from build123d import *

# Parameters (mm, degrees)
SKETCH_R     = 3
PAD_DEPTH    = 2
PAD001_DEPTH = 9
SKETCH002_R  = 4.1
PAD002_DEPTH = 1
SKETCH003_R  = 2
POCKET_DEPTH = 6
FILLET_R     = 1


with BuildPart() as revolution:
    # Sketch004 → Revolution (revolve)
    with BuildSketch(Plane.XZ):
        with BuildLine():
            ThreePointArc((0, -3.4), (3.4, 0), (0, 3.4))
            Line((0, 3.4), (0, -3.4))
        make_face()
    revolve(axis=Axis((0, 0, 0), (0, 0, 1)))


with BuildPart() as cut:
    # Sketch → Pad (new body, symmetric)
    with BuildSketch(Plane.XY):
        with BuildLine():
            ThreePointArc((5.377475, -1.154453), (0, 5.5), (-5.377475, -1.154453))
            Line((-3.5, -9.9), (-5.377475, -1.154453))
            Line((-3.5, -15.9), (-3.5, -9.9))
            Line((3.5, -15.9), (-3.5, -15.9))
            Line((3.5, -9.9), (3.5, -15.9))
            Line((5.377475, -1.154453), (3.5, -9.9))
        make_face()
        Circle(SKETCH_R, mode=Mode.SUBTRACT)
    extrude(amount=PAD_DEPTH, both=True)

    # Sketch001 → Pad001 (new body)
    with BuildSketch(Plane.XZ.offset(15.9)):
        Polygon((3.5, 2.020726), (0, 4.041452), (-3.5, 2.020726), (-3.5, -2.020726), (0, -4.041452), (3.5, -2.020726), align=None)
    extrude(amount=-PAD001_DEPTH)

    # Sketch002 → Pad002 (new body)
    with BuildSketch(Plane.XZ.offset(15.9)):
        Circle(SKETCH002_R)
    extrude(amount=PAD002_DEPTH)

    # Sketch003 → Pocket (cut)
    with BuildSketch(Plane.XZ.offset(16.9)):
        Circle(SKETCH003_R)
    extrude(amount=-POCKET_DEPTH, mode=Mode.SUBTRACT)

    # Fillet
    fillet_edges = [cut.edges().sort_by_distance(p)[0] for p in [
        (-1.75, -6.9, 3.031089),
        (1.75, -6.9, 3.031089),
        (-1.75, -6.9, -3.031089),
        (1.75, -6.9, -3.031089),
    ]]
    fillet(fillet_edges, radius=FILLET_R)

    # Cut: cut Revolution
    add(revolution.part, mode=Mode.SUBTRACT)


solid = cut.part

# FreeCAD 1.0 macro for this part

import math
import FreeCAD as App
import Part
import Sketcher
from FreeCAD import Vector
Q = App.Units.Quantity


def edges_at(feature, points):
    """Names of the edges that pass closest to the given points."""
    edges = feature.Shape.Edges
    near = lambda p: min(range(len(edges)), key=lambda i: edges[i].distToShape(Part.Vertex(*p))[0])
    return sorted({f"Edge{near(p) + 1}" for p in points})

doc = App.newDocument("Part")
params = doc.addObject("Spreadsheet::Sheet", "Params")
for row, (alias, value) in enumerate([
    ("sketch1_radius", "3.4 mm"),
    ("revolution_angle", "360 deg"),
    ("sketch2_diameter", "6 mm"),
    ("sketch2_radius", "5.5 mm"),
    ("sketch2_width", "7 mm"),
    ("sketch2_height", "6 mm"),
    ("pad1_length", "4 mm"),
    ("pad2_length", "9 mm"),
    ("sketch4_diameter", "8.2 mm"),
    ("pad3_length", "1 mm"),
    ("sketch5_diameter", "4 mm"),
    ("pocket1_length", "6 mm"),
    ("fillet_radius", "1 mm"),
], start=1):
    params.set(f"A{row}", alias)
    params.set(f"B{row}", "=" + value)
    params.setAlias(f"B{row}", alias)

body = doc.addObject("PartDesign::Body", "Body")

sketch1 = body.newObject("Sketcher::SketchObject", "Sketch")
sketch1.AttachmentSupport = (doc.getObject("XZ_Plane"), [""])
sketch1.MapMode = "FlatFace"
sketch1.addGeometry([
    Part.ArcOfCircle(Part.Circle(Vector(0, 0, 0), Vector(0, 0, 1), 3.4), math.radians(-90), math.radians(90)),
    Part.LineSegment(Vector(0, 3.4, 0), Vector(0, -3.4, 0)),
], False)
sketch1.addConstraint([
    Sketcher.Constraint("Coincident", 0, 1, 1, 2),
    Sketcher.Constraint("Coincident", 1, 1, 0, 2),
    Sketcher.Constraint("Vertical", 1),
    Sketcher.Constraint("Coincident", 0, 3, -1, 1),
    Sketcher.Constraint("PointOnObject", 0, 1, -2),
    Sketcher.Constraint("Radius", 0, 3.4),
])
sketch1.setExpression("Constraints[5]", "Params.sketch1_radius")
revolution = body.newObject("PartDesign::Revolution", "Revolution")
revolution.Profile = sketch1
revolution.ReferenceAxis = (sketch1, ["V_Axis"])
revolution.setExpression("Angle", "Params.revolution_angle")
body2 = doc.addObject("PartDesign::Body", "Body001")

sketch2 = body2.newObject("Sketcher::SketchObject", "Sketch001")
sketch2.AttachmentSupport = (doc.getObject("XY_Plane001"), [""])
sketch2.MapMode = "FlatFace"
sketch2.addGeometry([
    Part.ArcOfCircle(Part.Circle(Vector(0, 0, 0), Vector(0, 0, 1), 5.5), math.radians(-12.116525), math.radians(192.116525)),
    Part.LineSegment(Vector(-5.377475, -1.154453, 0), Vector(-3.5, -9.9, 0)),
    Part.LineSegment(Vector(-3.5, -9.9, 0), Vector(-3.5, -15.9, 0)),
    Part.LineSegment(Vector(-3.5, -15.9, 0), Vector(3.5, -15.9, 0)),
    Part.LineSegment(Vector(3.5, -15.9, 0), Vector(3.5, -9.9, 0)),
    Part.LineSegment(Vector(3.5, -9.9, 0), Vector(5.377475, -1.154453, 0)),
    Part.Circle(Vector(0, 0, 0), Vector(0, 0, 1), 3),
], False)
sketch2.addConstraint([
    Sketcher.Constraint("Coincident", 0, 2, 1, 1),
    Sketcher.Constraint("Coincident", 1, 2, 2, 1),
    Sketcher.Constraint("Coincident", 2, 2, 3, 1),
    Sketcher.Constraint("Coincident", 3, 2, 4, 1),
    Sketcher.Constraint("Coincident", 4, 2, 5, 1),
    Sketcher.Constraint("Coincident", 5, 2, 0, 1),
    Sketcher.Constraint("Vertical", 2),
    Sketcher.Constraint("Horizontal", 3),
    Sketcher.Constraint("Vertical", 4),
    Sketcher.Constraint("Coincident", 0, 3, -1, 1),
    Sketcher.Constraint("Coincident", 6, 3, -1, 1),
    Sketcher.Constraint("Symmetric", 1, 2, 4, 2, -2),
    Sketcher.Constraint("Horizontal", 0, 2, 5, 2),
    Sketcher.Constraint("Diameter", 6, 6.0),
    Sketcher.Constraint("Radius", 0, 5.5),
    Sketcher.Constraint("DistanceX", 3, 1, 3, 2, 7.0),
    Sketcher.Constraint("DistanceY", 2, 2, 2, 1, 6.0),
    Sketcher.Constraint("DistanceY", 1, 2, -1, 1, 9.9),
    Sketcher.Constraint("DistanceX", 0, 2, 5, 2, 10.75495),
])
sketch2.setExpression("Constraints[13]", "Params.sketch2_diameter")
sketch2.setExpression("Constraints[14]", "Params.sketch2_radius")
sketch2.setExpression("Constraints[15]", "Params.sketch2_width")
sketch2.setExpression("Constraints[16]", "Params.sketch2_height")
pad1 = body2.newObject("PartDesign::Pad", "Pad")
pad1.Profile = sketch2
pad1.setExpression("Length", "Params.pad1_length")
pad1.Midplane = True

sketch3 = body2.newObject("Sketcher::SketchObject", "Sketch002")
sketch3.AttachmentSupport = (doc.getObject("XZ_Plane001"), [""])
sketch3.MapMode = "FlatFace"
sketch3.AttachmentOffset = App.Placement(Vector(0, 0, 15.9), App.Rotation())
sketch3.addGeometry([
    Part.LineSegment(Vector(3.5, 2.020726, 0), Vector(0, 4.041452, 0)),
    Part.LineSegment(Vector(0, 4.041452, 0), Vector(-3.5, 2.020726, 0)),
    Part.LineSegment(Vector(-3.5, 2.020726, 0), Vector(-3.5, -2.020726, 0)),
    Part.LineSegment(Vector(-3.5, -2.020726, 0), Vector(0, -4.041452, 0)),
    Part.LineSegment(Vector(0, -4.041452, 0), Vector(3.5, -2.020726, 0)),
    Part.LineSegment(Vector(3.5, -2.020726, 0), Vector(3.5, 2.020726, 0)),
], False)
sketch3.addConstraint([
    Sketcher.Constraint("Coincident", 0, 2, 1, 1),
    Sketcher.Constraint("Coincident", 1, 2, 2, 1),
    Sketcher.Constraint("Coincident", 2, 2, 3, 1),
    Sketcher.Constraint("Coincident", 3, 2, 4, 1),
    Sketcher.Constraint("Coincident", 4, 2, 5, 1),
    Sketcher.Constraint("Coincident", 5, 2, 0, 1),
    Sketcher.Constraint("Vertical", 2),
    Sketcher.Constraint("Vertical", 5),
    Sketcher.Constraint("Symmetric", 0, 2, 3, 2, -1, 1),
    Sketcher.Constraint("Symmetric", 1, 2, 4, 2, -1, 1),
    Sketcher.Constraint("PointOnObject", 0, 2, -2),
    Sketcher.Constraint("Parallel", 0, 3),
    Sketcher.Constraint("Horizontal", 2, 2, 4, 2),
    Sketcher.Constraint("Angle", 0, Q("149.999999 deg")),
    Sketcher.Constraint("DistanceX", 2, 2, 4, 2, 7.0),
    Sketcher.Constraint("DistanceY", 2, 2, 2, 1, 4.041452),
])
pad2 = body2.newObject("PartDesign::Pad", "Pad001")
pad2.Profile = sketch3
pad2.setExpression("Length", "Params.pad2_length")
pad2.Reversed = True

sketch4 = body2.newObject("Sketcher::SketchObject", "Sketch003")
sketch4.AttachmentSupport = (doc.getObject("XZ_Plane001"), [""])
sketch4.MapMode = "FlatFace"
sketch4.AttachmentOffset = App.Placement(Vector(0, 0, 15.9), App.Rotation())
sketch4.addGeometry(Part.Circle(Vector(0, 0, 0), Vector(0, 0, 1), 4.1), False)
sketch4.addConstraint([
    Sketcher.Constraint("Coincident", 0, 3, -1, 1),
    Sketcher.Constraint("Diameter", 0, 8.2),
])
sketch4.setExpression("Constraints[1]", "Params.sketch4_diameter")
pad3 = body2.newObject("PartDesign::Pad", "Pad002")
pad3.Profile = sketch4
pad3.setExpression("Length", "Params.pad3_length")

sketch5 = body2.newObject("Sketcher::SketchObject", "Sketch004")
sketch5.AttachmentSupport = (doc.getObject("XZ_Plane001"), [""])
sketch5.MapMode = "FlatFace"
sketch5.AttachmentOffset = App.Placement(Vector(0, 0, 16.9), App.Rotation())
sketch5.addGeometry(Part.Circle(Vector(0, 0, 0), Vector(0, 0, 1), 2), False)
sketch5.addConstraint([
    Sketcher.Constraint("Coincident", 0, 3, -1, 1),
    Sketcher.Constraint("Diameter", 0, 4.0),
])
sketch5.setExpression("Constraints[1]", "Params.sketch5_diameter")
pocket1 = body2.newObject("PartDesign::Pocket", "Pocket")
pocket1.Profile = sketch5
pocket1.setExpression("Length", "Params.pocket1_length")
doc.recompute()

fillet = body2.newObject("PartDesign::Fillet", "Fillet")
fillet.Base = (pocket1, edges_at(pocket1, [
    (-1.75, -6.9, 3.031),
    (1.75, -6.9, 3.031),
    (-1.75, -6.9, -3.031),
    (1.75, -6.9, -3.031),
]))
fillet.setExpression("Radius", "Params.fillet_radius")
doc.recompute()

boolean = body2.newObject("PartDesign::Boolean", "Boolean")
boolean.Type = "Cut"
boolean.addObjects([body])

doc.recompute()
